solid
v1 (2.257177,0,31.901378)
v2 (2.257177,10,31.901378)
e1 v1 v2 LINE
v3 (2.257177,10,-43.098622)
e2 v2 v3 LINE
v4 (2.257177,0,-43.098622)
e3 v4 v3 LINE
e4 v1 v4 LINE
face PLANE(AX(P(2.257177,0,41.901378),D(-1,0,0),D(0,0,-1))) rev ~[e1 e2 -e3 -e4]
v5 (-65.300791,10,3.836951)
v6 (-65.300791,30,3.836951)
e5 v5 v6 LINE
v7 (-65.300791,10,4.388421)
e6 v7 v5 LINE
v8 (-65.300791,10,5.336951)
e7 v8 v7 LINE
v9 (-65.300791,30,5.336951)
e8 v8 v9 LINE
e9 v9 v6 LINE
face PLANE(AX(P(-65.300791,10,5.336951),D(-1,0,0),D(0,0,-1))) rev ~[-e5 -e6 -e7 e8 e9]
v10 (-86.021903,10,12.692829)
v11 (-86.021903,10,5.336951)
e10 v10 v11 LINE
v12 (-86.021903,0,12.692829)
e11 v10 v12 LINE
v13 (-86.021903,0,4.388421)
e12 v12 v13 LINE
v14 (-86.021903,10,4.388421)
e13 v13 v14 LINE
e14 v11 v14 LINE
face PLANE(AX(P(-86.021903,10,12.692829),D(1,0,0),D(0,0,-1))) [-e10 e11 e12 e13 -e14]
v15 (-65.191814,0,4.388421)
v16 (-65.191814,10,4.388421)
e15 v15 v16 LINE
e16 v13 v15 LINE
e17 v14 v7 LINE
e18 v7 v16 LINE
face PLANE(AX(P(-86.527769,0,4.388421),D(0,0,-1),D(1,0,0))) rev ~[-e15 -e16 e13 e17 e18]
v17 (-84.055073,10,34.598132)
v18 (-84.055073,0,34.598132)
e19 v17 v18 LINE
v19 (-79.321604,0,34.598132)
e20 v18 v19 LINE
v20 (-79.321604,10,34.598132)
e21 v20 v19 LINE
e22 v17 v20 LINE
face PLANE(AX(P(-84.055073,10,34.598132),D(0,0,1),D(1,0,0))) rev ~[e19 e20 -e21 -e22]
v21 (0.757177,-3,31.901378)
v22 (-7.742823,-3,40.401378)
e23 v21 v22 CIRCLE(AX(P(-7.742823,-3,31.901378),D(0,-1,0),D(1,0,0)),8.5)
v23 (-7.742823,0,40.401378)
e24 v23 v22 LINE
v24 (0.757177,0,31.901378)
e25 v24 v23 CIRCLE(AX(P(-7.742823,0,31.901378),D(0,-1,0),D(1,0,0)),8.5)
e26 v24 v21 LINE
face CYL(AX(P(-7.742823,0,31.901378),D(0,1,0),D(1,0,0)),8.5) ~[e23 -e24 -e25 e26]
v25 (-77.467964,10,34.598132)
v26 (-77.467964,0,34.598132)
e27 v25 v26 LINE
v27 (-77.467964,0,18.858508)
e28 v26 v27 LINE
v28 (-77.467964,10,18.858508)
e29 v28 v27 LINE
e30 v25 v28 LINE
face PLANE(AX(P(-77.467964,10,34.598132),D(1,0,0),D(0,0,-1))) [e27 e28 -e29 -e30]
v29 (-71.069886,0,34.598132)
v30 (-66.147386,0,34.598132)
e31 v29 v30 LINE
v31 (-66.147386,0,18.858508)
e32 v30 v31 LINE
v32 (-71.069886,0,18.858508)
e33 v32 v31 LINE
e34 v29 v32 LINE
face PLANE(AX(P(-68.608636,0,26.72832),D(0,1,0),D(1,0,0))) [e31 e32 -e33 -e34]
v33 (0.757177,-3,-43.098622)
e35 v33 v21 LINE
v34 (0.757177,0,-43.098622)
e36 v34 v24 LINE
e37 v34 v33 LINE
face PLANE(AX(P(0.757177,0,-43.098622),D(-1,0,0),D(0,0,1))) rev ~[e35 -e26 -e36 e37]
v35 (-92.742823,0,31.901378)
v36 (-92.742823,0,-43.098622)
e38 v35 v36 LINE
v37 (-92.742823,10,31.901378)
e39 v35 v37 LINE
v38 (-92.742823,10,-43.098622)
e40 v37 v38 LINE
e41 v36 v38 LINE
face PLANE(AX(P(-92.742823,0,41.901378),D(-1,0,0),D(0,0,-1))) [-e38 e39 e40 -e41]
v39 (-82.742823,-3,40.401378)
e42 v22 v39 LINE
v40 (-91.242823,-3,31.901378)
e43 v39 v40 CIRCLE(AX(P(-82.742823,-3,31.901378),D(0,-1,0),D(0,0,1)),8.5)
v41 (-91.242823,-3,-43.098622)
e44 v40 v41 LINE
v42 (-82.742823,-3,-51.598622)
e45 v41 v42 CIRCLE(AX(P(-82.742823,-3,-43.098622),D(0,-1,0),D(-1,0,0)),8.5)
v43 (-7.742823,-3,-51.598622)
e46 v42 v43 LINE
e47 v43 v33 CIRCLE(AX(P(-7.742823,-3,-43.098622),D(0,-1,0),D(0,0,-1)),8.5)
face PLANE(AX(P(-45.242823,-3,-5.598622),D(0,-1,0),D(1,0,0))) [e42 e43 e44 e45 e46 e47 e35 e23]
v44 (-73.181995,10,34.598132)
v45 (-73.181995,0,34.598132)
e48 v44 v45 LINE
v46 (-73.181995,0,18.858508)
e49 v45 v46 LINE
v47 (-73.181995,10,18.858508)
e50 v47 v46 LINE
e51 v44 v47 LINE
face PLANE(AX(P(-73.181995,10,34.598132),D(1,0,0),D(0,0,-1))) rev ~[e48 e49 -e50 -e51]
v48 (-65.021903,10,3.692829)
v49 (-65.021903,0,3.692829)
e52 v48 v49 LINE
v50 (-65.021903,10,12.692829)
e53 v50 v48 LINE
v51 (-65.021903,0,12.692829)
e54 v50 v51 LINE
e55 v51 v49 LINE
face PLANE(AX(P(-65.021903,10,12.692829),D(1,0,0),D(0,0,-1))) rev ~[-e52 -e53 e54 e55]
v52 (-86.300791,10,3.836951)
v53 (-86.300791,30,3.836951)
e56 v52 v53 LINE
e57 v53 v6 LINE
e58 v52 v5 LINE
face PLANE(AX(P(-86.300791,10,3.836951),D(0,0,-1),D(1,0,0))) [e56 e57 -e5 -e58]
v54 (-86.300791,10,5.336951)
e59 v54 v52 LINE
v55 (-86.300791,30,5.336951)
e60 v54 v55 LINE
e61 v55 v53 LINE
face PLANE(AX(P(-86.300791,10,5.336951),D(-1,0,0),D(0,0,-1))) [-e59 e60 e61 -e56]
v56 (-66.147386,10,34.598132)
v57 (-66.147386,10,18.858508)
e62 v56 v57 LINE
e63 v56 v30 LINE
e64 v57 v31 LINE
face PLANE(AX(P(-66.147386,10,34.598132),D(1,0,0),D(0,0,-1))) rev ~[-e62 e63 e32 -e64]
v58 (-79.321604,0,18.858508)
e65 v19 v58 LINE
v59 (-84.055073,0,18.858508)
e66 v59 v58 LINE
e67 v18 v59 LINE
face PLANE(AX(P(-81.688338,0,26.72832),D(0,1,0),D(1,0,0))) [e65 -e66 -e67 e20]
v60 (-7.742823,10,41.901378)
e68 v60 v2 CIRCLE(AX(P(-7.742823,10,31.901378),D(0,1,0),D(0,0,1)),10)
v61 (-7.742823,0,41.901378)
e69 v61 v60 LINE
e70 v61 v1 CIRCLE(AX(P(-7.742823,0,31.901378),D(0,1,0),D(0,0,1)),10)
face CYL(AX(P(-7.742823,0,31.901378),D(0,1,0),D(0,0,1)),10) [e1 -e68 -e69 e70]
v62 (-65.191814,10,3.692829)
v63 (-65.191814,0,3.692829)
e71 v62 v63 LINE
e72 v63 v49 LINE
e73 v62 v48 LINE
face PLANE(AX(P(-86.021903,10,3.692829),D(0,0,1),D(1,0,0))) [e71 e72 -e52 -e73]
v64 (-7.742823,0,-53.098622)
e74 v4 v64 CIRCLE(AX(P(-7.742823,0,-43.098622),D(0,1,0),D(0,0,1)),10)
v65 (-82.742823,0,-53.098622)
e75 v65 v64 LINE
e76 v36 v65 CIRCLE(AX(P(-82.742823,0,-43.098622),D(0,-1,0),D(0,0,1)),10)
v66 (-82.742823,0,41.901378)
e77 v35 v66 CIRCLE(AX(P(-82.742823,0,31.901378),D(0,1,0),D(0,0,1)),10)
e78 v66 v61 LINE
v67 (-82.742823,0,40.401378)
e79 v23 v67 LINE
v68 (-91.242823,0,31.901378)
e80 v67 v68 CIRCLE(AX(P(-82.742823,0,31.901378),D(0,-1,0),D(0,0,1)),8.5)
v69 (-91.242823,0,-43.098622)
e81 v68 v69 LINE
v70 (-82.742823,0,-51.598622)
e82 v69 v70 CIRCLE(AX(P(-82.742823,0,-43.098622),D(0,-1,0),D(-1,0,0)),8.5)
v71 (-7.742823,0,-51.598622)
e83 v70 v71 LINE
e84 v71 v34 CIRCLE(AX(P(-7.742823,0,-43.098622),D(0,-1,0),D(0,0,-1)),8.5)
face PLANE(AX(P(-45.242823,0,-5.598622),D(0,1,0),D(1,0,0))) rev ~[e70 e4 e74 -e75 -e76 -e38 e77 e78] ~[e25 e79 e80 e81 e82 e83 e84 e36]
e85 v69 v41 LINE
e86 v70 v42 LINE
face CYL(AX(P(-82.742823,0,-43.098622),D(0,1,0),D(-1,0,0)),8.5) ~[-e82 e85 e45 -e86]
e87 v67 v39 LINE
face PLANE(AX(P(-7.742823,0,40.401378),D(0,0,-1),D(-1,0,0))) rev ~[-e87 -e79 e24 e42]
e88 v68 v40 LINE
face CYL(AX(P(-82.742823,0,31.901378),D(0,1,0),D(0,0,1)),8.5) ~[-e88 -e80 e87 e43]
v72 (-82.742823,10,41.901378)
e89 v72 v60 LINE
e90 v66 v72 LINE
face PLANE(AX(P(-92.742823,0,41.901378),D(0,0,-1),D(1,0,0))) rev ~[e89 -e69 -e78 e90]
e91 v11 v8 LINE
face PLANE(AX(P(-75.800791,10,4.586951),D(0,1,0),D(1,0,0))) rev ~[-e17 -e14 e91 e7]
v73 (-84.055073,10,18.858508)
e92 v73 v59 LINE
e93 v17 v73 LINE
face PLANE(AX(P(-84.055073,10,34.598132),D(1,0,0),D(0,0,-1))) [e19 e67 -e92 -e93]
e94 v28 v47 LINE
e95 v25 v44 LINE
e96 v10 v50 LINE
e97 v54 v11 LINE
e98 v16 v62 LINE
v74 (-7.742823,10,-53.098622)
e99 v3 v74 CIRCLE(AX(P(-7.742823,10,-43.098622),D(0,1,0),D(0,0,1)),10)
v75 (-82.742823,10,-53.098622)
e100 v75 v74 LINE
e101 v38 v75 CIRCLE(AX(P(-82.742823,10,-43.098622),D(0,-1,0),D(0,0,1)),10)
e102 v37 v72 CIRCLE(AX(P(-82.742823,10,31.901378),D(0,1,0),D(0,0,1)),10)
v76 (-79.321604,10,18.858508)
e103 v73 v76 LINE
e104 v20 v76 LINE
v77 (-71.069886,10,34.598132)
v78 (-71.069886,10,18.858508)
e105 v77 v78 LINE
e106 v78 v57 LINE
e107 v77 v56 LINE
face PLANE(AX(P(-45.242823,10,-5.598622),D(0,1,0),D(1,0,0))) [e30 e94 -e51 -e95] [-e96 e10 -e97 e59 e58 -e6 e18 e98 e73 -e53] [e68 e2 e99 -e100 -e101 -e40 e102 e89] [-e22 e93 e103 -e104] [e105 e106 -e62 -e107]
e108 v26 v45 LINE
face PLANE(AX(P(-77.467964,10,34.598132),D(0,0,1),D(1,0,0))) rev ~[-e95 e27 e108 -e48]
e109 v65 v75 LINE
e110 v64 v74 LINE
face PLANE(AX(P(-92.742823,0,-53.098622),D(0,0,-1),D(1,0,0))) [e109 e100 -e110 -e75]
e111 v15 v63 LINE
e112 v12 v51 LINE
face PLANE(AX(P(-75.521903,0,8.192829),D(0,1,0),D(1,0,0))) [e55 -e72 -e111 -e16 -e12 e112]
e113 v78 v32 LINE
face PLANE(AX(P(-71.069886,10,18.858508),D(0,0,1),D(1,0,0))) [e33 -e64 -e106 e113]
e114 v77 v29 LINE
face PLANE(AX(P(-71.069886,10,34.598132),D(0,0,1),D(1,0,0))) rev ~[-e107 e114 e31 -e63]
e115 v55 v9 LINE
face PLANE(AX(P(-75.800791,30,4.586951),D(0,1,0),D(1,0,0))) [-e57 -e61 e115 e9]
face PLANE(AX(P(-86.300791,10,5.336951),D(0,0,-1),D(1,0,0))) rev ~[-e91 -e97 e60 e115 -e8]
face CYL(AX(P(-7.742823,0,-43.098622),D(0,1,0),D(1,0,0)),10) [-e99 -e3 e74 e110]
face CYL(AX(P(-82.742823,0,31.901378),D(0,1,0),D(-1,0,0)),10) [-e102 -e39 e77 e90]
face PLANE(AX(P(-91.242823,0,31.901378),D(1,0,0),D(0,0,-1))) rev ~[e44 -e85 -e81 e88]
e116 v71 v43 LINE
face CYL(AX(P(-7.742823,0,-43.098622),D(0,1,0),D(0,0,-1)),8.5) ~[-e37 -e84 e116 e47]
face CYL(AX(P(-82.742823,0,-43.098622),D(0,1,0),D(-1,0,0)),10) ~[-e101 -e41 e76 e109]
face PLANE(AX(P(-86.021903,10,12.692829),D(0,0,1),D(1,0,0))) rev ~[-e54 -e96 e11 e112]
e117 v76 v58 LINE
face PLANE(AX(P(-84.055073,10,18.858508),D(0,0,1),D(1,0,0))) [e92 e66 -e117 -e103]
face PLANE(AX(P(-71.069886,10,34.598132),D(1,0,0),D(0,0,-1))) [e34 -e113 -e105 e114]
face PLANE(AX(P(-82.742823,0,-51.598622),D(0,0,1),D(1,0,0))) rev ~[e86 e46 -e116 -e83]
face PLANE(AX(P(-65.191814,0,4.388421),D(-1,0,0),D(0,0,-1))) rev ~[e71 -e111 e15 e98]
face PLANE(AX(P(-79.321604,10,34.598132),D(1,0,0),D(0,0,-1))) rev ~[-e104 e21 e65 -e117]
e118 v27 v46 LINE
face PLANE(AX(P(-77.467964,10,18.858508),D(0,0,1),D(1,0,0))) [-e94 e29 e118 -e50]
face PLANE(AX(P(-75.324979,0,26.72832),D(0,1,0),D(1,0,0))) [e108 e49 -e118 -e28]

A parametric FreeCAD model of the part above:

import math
import FreeCAD as App
import Part
import Sketcher
Q = App.Units.Quantity


def edges_at(feature, points):
    """Names of the edges that pass closest to the given points."""
    edges = feature.Shape.Edges
    near = lambda p: min(range(len(edges)), key=lambda i: edges[i].distToShape(Part.Vertex(*p))[0])
    return sorted({f"Edge{near(p) + 1}" for p in points})

doc = App.newDocument("Part")
body = doc.addObject("PartDesign::Body", "Body")

# Sketch on XZ plane
sketch1 = body.newObject("Sketcher::SketchObject", "Sketch")
sketch1.AttachmentSupport = (doc.getObject("XZ_Plane"), [""])
sketch1.MapMode = "FlatFace"
sketch1.addGeometry([
    Part.LineSegment(App.Vector(-93, -53, 0), App.Vector(-93, 42, 0)),
    Part.LineSegment(App.Vector(-93, 42, 0), App.Vector(2, 42, 0)),
    Part.LineSegment(App.Vector(2, 42, 0), App.Vector(2, -53, 0)),
    Part.LineSegment(App.Vector(2, -53, 0), App.Vector(-93, -53, 0)),
], False)
sketch1.addConstraint([
    Sketcher.Constraint("Coincident", 0, 2, 1, 1),
    Sketcher.Constraint("Coincident", 1, 2, 2, 1),
    Sketcher.Constraint("Coincident", 2, 2, 3, 1),
    Sketcher.Constraint("Coincident", 3, 2, 0, 1),
    Sketcher.Constraint("Vertical", 0),
    Sketcher.Constraint("Horizontal", 1),
    Sketcher.Constraint("Vertical", 2),
    Sketcher.Constraint("Horizontal", 3),
    Sketcher.Constraint("Equal", 3, 0),
    Sketcher.Constraint("DistanceX", 1, 1, 1, 2, Q("95 mm")),
    Sketcher.Constraint("DistanceX", 0, 2, -1, 1, Q("92.742823 mm")),
    Sketcher.Constraint("DistanceY", -1, 1, 0, 2, Q("41.901378 mm")),
])
pad1 = body.newObject("PartDesign::Pad", "Pad")
pad1.Profile = sketch1
pad1.Length = 10
pad1.Reversed = True
doc.recompute()

fillet = body.newObject("PartDesign::Fillet", "Fillet")
fillet.Base = (pad1, edges_at(pad1, [
    (2.257, 5, 41.901),
    (-92.743, 5, 41.901),
    (-92.743, 5, -53.099),
    (2.257, 5, -53.099),
]))
fillet.Radius = 10

# Sketch on XZ plane
sketch2 = body.newObject("Sketcher::SketchObject", "Sketch001")
sketch2.AttachmentSupport = (doc.getObject("XZ_Plane"), [""])
sketch2.MapMode = "FlatFace"
sketch2.addGeometry([
    Part.LineSegment(App.Vector(-91, 32, 0), App.Vector(-91, -43, 0)),  # 0
    Part.ArcOfCircle(Part.Circle(App.Vector(-83, -43, 0), App.Vector(0, 0, 1), 8), math.radians(180), math.radians(270)),  # 1
    Part.LineSegment(App.Vector(-83, -52, 0), App.Vector(-8, -52, 0)),  # 2
    Part.ArcOfCircle(Part.Circle(App.Vector(-8, -43, 0), App.Vector(0, 0, 1), 8), math.radians(-90), math.radians(0)),  # 3
    Part.LineSegment(App.Vector(1, -43, 0), App.Vector(1, 32, 0)),  # 4
    Part.ArcOfCircle(Part.Circle(App.Vector(-8, 32, 0), App.Vector(0, 0, 1), 8), math.radians(0), math.radians(90)),  # 5
    Part.LineSegment(App.Vector(-8, 40, 0), App.Vector(-83, 40, 0)),  # 6
    Part.ArcOfCircle(Part.Circle(App.Vector(-83, 32, 0), App.Vector(0, 0, 1), 8), math.radians(90), math.radians(180)),  # 7
], False)
sketch2.addConstraint([
    Sketcher.Constraint("Tangent", 0, 2, 1, 1),
    Sketcher.Constraint("Tangent", 1, 2, 2, 1),
    Sketcher.Constraint("Tangent", 2, 2, 3, 1),
    Sketcher.Constraint("Tangent", 3, 2, 4, 1),
    Sketcher.Constraint("Tangent", 4, 2, 5, 1),
    Sketcher.Constraint("Tangent", 5, 2, 6, 1),
    Sketcher.Constraint("Tangent", 6, 2, 7, 1),
    Sketcher.Constraint("Tangent", 7, 2, 0, 1),
    Sketcher.Constraint("Vertical", 0),
    Sketcher.Constraint("Horizontal", 2),
    Sketcher.Constraint("Vertical", 4),
    Sketcher.Constraint("Horizontal", 6),
    Sketcher.Constraint("Equal", 1, 3),
    Sketcher.Constraint("Equal", 3, 5),
    Sketcher.Constraint("Equal", 5, 7),
    Sketcher.Constraint("Equal", 6, 0),
    Sketcher.Constraint("Radius", 1, Q("8.5 mm")),
    Sketcher.Constraint("DistanceX", 2, 1, 2, 2, Q("75 mm")),
    Sketcher.Constraint("DistanceX", 1, 3, -1, 1, Q("82.742823 mm")),
    Sketcher.Constraint("DistanceY", 1, 3, -1, 1, Q("43.098622 mm")),
])
pad2 = body.newObject("PartDesign::Pad", "Pad001")
pad2.Profile = sketch2
pad2.Length = 3

# Sketch on XZ plane
sketch3 = body.newObject("Sketcher::SketchObject", "Sketch002")
sketch3.AttachmentSupport = (doc.getObject("XZ_Plane"), [""])
sketch3.MapMode = "FlatFace"
sketch3.AttachmentOffset = App.Placement(App.Vector(0, 0, -10), App.Rotation())
sketch3.addGeometry([
    Part.LineSegment(App.Vector(-84.1, 18.9, 0), App.Vector(-84.1, 34.6, 0)),  # 0
    Part.LineSegment(App.Vector(-84.1, 34.6, 0), App.Vector(-79.3, 34.6, 0)),  # 1
    Part.LineSegment(App.Vector(-79.3, 34.6, 0), App.Vector(-79.3, 18.9, 0)),  # 2
    Part.LineSegment(App.Vector(-79.3, 18.9, 0), App.Vector(-84.1, 18.9, 0)),  # 3
    Part.LineSegment(App.Vector(-77.5, 18.9, 0), App.Vector(-77.5, 34.6, 0)),  # 4
    Part.LineSegment(App.Vector(-77.5, 34.6, 0), App.Vector(-73.2, 34.6, 0)),  # 5
    Part.LineSegment(App.Vector(-73.2, 34.6, 0), App.Vector(-73.2, 18.9, 0)),  # 6
    Part.LineSegment(App.Vector(-73.2, 18.9, 0), App.Vector(-77.5, 18.9, 0)),  # 7
    Part.LineSegment(App.Vector(-71.1, 18.9, 0), App.Vector(-71.1, 34.6, 0)),  # 8
    Part.LineSegment(App.Vector(-71.1, 34.6, 0), App.Vector(-66.1, 34.6, 0)),  # 9
    Part.LineSegment(App.Vector(-66.1, 34.6, 0), App.Vector(-66.1, 18.9, 0)),  # 10
    Part.LineSegment(App.Vector(-66.1, 18.9, 0), App.Vector(-71.1, 18.9, 0)),  # 11
], False)
sketch3.addConstraint([
    Sketcher.Constraint("Coincident", 0, 2, 1, 1),
    Sketcher.Constraint("Coincident", 1, 2, 2, 1),
    Sketcher.Constraint("Coincident", 2, 2, 3, 1),
    Sketcher.Constraint("Coincident", 3, 2, 0, 1),
    Sketcher.Constraint("Coincident", 4, 2, 5, 1),
    Sketcher.Constraint("Coincident", 5, 2, 6, 1),
    Sketcher.Constraint("Coincident", 6, 2, 7, 1),
    Sketcher.Constraint("Coincident", 7, 2, 4, 1),
    Sketcher.Constraint("Coincident", 8, 2, 9, 1),
    Sketcher.Constraint("Coincident", 9, 2, 10, 1),
    Sketcher.Constraint("Coincident", 10, 2, 11, 1),
    Sketcher.Constraint("Coincident", 11, 2, 8, 1),
    Sketcher.Constraint("Vertical", 0),
    Sketcher.Constraint("Horizontal", 1),
    Sketcher.Constraint("Vertical", 2),
    Sketcher.Constraint("Horizontal", 3),
    Sketcher.Constraint("Vertical", 4),
    Sketcher.Constraint("Horizontal", 5),
    Sketcher.Constraint("Vertical", 6),
    Sketcher.Constraint("Horizontal", 7),
    Sketcher.Constraint("Vertical", 8),
    Sketcher.Constraint("Horizontal", 9),
    Sketcher.Constraint("Vertical", 10),
    Sketcher.Constraint("Horizontal", 11),
    Sketcher.Constraint("Horizontal", 1, 2, 4, 2),
    Sketcher.Constraint("Horizontal", 3, 2, 6, 2),
    Sketcher.Constraint("Horizontal", 5, 2, 8, 2),
    Sketcher.Constraint("Horizontal", 7, 2, 10, 2),
    Sketcher.Constraint("DistanceX", 9, 1, 9, 2, Q("4.9225 mm")),
    Sketcher.Constraint("DistanceX", 1, 1, 1, 2, Q("4.733469 mm")),
    Sketcher.Constraint("DistanceX", 5, 1, 5, 2, Q("4.285969 mm")),
    Sketcher.Constraint("DistanceY", 0, 1, 0, 2, Q("15.739624 mm")),
    Sketcher.Constraint("DistanceY", -1, 1, 2, 2, Q("18.858508 mm")),
    Sketcher.Constraint("DistanceX", 1, 2, 4, 2, Q("1.853641 mm")),
    Sketcher.Constraint("DistanceX", 5, 2, 8, 2, Q("2.112109 mm")),
    Sketcher.Constraint("DistanceX", 0, 2, -1, 1, Q("84.055073 mm")),
])
pocket1 = body.newObject("PartDesign::Pocket", "Pocket")
pocket1.Profile = sketch3
pocket1.Length = 10
pocket1.Reversed = True

# Sketch on XZ plane
sketch4 = body.newObject("Sketcher::SketchObject", "Sketch003")
sketch4.AttachmentSupport = (doc.getObject("XZ_Plane"), [""])
sketch4.MapMode = "FlatFace"
sketch4.AttachmentOffset = App.Placement(App.Vector(0, 0, -10), App.Rotation())
sketch4.addGeometry([
    Part.LineSegment(App.Vector(-86, 4, 0), App.Vector(-86, 13, 0)),
    Part.LineSegment(App.Vector(-86, 13, 0), App.Vector(-65, 13, 0)),
    Part.LineSegment(App.Vector(-65, 13, 0), App.Vector(-65, 4, 0)),
    Part.LineSegment(App.Vector(-65, 4, 0), App.Vector(-86, 4, 0)),
], False)
sketch4.addConstraint([
    Sketcher.Constraint("Coincident", 0, 2, 1, 1),
    Sketcher.Constraint("Coincident", 1, 2, 2, 1),
    Sketcher.Constraint("Coincident", 2, 2, 3, 1),
    Sketcher.Constraint("Coincident", 3, 2, 0, 1),
    Sketcher.Constraint("Vertical", 0),
    Sketcher.Constraint("Horizontal", 1),
    Sketcher.Constraint("Vertical", 2),
    Sketcher.Constraint("Horizontal", 3),
    Sketcher.Constraint("DistanceX", 1, 1, 1, 2, Q("21 mm")),
    Sketcher.Constraint("DistanceY", 0, 1, 0, 2, Q("9 mm")),
    Sketcher.Constraint("DistanceY", -1, 1, 0, 2, Q("12.692829 mm")),
    Sketcher.Constraint("DistanceX", 0, 2, -1, 1, Q("86.021903 mm")),
])
pocket2 = body.newObject("PartDesign::Pocket", "Pocket001")
pocket2.Profile = sketch4
pocket2.Length = 10
pocket2.Reversed = True

# Sketch on XZ plane
sketch5 = body.newObject("Sketcher::SketchObject", "Sketch004")
sketch5.AttachmentSupport = (doc.getObject("XZ_Plane"), [""])
sketch5.MapMode = "FlatFace"
sketch5.addGeometry([
    Part.LineSegment(App.Vector(-87, -9, 0), App.Vector(-87, 4, 0)),
    Part.LineSegment(App.Vector(-87, 4, 0), App.Vector(-65, 4, 0)),
    Part.LineSegment(App.Vector(-65, 4, 0), App.Vector(-65, -9, 0)),
    Part.LineSegment(App.Vector(-65, -9, 0), App.Vector(-87, -9, 0)),
], False)
sketch5.addConstraint([
    Sketcher.Constraint("Coincident", 0, 2, 1, 1),
    Sketcher.Constraint("Coincident", 1, 2, 2, 1),
    Sketcher.Constraint("Coincident", 2, 2, 3, 1),
    Sketcher.Constraint("Coincident", 3, 2, 0, 1),
    Sketcher.Constraint("Vertical", 0),
    Sketcher.Constraint("Horizontal", 1),
    Sketcher.Constraint("Vertical", 2),
    Sketcher.Constraint("Horizontal", 3),
    Sketcher.Constraint("DistanceX", 1, 1, 1, 2, Q("21.335955 mm")),
    Sketcher.Constraint("DistanceY", 0, 1, 0, 2, Q("13.618695 mm")),
    Sketcher.Constraint("DistanceX", 0, 2, -1, 1, Q("86.527769 mm")),
    Sketcher.Constraint("DistanceY", -1, 1, 0, 2, Q("4.388421 mm")),
])
pad3 = body.newObject("PartDesign::Pad", "Pad002")
pad3.Profile = sketch5
pad3.Length = 10
pad3.Reversed = True

# Sketch on XZ plane
sketch6 = body.newObject("Sketcher::SketchObject", "Sketch005")
sketch6.AttachmentSupport = (doc.getObject("XZ_Plane"), [""])
sketch6.MapMode = "FlatFace"
sketch6.AttachmentOffset = App.Placement(App.Vector(0, 0, -10), App.Rotation())
sketch6.addGeometry([
    Part.LineSegment(App.Vector(-86.3, 3.8, 0), App.Vector(-86.3, 5.3, 0)),
    Part.LineSegment(App.Vector(-86.3, 5.3, 0), App.Vector(-65.3, 5.3, 0)),
    Part.LineSegment(App.Vector(-65.3, 5.3, 0), App.Vector(-65.3, 3.8, 0)),
    Part.LineSegment(App.Vector(-65.3, 3.8, 0), App.Vector(-86.3, 3.8, 0)),
], False)
sketch6.addConstraint([
    Sketcher.Constraint("Coincident", 0, 2, 1, 1),
    Sketcher.Constraint("Coincident", 1, 2, 2, 1),
    Sketcher.Constraint("Coincident", 2, 2, 3, 1),
    Sketcher.Constraint("Coincident", 3, 2, 0, 1),
    Sketcher.Constraint("Vertical", 0),
    Sketcher.Constraint("Horizontal", 1),
    Sketcher.Constraint("Vertical", 2),
    Sketcher.Constraint("Horizontal", 3),
    Sketcher.Constraint("DistanceX", 1, 1, 1, 2, Q("21 mm")),
    Sketcher.Constraint("DistanceY", 0, 1, 0, 2, Q("1.5 mm")),
    Sketcher.Constraint("DistanceX", 0, 2, -1, 1, Q("86.300791 mm")),
    Sketcher.Constraint("DistanceY", -1, 1, 0, 2, Q("5.336951 mm")),
])
pad4 = body.newObject("PartDesign::Pad", "Pad003")
pad4.Profile = sketch6
pad4.Length = 20
pad4.Reversed = True

doc.recompute()
